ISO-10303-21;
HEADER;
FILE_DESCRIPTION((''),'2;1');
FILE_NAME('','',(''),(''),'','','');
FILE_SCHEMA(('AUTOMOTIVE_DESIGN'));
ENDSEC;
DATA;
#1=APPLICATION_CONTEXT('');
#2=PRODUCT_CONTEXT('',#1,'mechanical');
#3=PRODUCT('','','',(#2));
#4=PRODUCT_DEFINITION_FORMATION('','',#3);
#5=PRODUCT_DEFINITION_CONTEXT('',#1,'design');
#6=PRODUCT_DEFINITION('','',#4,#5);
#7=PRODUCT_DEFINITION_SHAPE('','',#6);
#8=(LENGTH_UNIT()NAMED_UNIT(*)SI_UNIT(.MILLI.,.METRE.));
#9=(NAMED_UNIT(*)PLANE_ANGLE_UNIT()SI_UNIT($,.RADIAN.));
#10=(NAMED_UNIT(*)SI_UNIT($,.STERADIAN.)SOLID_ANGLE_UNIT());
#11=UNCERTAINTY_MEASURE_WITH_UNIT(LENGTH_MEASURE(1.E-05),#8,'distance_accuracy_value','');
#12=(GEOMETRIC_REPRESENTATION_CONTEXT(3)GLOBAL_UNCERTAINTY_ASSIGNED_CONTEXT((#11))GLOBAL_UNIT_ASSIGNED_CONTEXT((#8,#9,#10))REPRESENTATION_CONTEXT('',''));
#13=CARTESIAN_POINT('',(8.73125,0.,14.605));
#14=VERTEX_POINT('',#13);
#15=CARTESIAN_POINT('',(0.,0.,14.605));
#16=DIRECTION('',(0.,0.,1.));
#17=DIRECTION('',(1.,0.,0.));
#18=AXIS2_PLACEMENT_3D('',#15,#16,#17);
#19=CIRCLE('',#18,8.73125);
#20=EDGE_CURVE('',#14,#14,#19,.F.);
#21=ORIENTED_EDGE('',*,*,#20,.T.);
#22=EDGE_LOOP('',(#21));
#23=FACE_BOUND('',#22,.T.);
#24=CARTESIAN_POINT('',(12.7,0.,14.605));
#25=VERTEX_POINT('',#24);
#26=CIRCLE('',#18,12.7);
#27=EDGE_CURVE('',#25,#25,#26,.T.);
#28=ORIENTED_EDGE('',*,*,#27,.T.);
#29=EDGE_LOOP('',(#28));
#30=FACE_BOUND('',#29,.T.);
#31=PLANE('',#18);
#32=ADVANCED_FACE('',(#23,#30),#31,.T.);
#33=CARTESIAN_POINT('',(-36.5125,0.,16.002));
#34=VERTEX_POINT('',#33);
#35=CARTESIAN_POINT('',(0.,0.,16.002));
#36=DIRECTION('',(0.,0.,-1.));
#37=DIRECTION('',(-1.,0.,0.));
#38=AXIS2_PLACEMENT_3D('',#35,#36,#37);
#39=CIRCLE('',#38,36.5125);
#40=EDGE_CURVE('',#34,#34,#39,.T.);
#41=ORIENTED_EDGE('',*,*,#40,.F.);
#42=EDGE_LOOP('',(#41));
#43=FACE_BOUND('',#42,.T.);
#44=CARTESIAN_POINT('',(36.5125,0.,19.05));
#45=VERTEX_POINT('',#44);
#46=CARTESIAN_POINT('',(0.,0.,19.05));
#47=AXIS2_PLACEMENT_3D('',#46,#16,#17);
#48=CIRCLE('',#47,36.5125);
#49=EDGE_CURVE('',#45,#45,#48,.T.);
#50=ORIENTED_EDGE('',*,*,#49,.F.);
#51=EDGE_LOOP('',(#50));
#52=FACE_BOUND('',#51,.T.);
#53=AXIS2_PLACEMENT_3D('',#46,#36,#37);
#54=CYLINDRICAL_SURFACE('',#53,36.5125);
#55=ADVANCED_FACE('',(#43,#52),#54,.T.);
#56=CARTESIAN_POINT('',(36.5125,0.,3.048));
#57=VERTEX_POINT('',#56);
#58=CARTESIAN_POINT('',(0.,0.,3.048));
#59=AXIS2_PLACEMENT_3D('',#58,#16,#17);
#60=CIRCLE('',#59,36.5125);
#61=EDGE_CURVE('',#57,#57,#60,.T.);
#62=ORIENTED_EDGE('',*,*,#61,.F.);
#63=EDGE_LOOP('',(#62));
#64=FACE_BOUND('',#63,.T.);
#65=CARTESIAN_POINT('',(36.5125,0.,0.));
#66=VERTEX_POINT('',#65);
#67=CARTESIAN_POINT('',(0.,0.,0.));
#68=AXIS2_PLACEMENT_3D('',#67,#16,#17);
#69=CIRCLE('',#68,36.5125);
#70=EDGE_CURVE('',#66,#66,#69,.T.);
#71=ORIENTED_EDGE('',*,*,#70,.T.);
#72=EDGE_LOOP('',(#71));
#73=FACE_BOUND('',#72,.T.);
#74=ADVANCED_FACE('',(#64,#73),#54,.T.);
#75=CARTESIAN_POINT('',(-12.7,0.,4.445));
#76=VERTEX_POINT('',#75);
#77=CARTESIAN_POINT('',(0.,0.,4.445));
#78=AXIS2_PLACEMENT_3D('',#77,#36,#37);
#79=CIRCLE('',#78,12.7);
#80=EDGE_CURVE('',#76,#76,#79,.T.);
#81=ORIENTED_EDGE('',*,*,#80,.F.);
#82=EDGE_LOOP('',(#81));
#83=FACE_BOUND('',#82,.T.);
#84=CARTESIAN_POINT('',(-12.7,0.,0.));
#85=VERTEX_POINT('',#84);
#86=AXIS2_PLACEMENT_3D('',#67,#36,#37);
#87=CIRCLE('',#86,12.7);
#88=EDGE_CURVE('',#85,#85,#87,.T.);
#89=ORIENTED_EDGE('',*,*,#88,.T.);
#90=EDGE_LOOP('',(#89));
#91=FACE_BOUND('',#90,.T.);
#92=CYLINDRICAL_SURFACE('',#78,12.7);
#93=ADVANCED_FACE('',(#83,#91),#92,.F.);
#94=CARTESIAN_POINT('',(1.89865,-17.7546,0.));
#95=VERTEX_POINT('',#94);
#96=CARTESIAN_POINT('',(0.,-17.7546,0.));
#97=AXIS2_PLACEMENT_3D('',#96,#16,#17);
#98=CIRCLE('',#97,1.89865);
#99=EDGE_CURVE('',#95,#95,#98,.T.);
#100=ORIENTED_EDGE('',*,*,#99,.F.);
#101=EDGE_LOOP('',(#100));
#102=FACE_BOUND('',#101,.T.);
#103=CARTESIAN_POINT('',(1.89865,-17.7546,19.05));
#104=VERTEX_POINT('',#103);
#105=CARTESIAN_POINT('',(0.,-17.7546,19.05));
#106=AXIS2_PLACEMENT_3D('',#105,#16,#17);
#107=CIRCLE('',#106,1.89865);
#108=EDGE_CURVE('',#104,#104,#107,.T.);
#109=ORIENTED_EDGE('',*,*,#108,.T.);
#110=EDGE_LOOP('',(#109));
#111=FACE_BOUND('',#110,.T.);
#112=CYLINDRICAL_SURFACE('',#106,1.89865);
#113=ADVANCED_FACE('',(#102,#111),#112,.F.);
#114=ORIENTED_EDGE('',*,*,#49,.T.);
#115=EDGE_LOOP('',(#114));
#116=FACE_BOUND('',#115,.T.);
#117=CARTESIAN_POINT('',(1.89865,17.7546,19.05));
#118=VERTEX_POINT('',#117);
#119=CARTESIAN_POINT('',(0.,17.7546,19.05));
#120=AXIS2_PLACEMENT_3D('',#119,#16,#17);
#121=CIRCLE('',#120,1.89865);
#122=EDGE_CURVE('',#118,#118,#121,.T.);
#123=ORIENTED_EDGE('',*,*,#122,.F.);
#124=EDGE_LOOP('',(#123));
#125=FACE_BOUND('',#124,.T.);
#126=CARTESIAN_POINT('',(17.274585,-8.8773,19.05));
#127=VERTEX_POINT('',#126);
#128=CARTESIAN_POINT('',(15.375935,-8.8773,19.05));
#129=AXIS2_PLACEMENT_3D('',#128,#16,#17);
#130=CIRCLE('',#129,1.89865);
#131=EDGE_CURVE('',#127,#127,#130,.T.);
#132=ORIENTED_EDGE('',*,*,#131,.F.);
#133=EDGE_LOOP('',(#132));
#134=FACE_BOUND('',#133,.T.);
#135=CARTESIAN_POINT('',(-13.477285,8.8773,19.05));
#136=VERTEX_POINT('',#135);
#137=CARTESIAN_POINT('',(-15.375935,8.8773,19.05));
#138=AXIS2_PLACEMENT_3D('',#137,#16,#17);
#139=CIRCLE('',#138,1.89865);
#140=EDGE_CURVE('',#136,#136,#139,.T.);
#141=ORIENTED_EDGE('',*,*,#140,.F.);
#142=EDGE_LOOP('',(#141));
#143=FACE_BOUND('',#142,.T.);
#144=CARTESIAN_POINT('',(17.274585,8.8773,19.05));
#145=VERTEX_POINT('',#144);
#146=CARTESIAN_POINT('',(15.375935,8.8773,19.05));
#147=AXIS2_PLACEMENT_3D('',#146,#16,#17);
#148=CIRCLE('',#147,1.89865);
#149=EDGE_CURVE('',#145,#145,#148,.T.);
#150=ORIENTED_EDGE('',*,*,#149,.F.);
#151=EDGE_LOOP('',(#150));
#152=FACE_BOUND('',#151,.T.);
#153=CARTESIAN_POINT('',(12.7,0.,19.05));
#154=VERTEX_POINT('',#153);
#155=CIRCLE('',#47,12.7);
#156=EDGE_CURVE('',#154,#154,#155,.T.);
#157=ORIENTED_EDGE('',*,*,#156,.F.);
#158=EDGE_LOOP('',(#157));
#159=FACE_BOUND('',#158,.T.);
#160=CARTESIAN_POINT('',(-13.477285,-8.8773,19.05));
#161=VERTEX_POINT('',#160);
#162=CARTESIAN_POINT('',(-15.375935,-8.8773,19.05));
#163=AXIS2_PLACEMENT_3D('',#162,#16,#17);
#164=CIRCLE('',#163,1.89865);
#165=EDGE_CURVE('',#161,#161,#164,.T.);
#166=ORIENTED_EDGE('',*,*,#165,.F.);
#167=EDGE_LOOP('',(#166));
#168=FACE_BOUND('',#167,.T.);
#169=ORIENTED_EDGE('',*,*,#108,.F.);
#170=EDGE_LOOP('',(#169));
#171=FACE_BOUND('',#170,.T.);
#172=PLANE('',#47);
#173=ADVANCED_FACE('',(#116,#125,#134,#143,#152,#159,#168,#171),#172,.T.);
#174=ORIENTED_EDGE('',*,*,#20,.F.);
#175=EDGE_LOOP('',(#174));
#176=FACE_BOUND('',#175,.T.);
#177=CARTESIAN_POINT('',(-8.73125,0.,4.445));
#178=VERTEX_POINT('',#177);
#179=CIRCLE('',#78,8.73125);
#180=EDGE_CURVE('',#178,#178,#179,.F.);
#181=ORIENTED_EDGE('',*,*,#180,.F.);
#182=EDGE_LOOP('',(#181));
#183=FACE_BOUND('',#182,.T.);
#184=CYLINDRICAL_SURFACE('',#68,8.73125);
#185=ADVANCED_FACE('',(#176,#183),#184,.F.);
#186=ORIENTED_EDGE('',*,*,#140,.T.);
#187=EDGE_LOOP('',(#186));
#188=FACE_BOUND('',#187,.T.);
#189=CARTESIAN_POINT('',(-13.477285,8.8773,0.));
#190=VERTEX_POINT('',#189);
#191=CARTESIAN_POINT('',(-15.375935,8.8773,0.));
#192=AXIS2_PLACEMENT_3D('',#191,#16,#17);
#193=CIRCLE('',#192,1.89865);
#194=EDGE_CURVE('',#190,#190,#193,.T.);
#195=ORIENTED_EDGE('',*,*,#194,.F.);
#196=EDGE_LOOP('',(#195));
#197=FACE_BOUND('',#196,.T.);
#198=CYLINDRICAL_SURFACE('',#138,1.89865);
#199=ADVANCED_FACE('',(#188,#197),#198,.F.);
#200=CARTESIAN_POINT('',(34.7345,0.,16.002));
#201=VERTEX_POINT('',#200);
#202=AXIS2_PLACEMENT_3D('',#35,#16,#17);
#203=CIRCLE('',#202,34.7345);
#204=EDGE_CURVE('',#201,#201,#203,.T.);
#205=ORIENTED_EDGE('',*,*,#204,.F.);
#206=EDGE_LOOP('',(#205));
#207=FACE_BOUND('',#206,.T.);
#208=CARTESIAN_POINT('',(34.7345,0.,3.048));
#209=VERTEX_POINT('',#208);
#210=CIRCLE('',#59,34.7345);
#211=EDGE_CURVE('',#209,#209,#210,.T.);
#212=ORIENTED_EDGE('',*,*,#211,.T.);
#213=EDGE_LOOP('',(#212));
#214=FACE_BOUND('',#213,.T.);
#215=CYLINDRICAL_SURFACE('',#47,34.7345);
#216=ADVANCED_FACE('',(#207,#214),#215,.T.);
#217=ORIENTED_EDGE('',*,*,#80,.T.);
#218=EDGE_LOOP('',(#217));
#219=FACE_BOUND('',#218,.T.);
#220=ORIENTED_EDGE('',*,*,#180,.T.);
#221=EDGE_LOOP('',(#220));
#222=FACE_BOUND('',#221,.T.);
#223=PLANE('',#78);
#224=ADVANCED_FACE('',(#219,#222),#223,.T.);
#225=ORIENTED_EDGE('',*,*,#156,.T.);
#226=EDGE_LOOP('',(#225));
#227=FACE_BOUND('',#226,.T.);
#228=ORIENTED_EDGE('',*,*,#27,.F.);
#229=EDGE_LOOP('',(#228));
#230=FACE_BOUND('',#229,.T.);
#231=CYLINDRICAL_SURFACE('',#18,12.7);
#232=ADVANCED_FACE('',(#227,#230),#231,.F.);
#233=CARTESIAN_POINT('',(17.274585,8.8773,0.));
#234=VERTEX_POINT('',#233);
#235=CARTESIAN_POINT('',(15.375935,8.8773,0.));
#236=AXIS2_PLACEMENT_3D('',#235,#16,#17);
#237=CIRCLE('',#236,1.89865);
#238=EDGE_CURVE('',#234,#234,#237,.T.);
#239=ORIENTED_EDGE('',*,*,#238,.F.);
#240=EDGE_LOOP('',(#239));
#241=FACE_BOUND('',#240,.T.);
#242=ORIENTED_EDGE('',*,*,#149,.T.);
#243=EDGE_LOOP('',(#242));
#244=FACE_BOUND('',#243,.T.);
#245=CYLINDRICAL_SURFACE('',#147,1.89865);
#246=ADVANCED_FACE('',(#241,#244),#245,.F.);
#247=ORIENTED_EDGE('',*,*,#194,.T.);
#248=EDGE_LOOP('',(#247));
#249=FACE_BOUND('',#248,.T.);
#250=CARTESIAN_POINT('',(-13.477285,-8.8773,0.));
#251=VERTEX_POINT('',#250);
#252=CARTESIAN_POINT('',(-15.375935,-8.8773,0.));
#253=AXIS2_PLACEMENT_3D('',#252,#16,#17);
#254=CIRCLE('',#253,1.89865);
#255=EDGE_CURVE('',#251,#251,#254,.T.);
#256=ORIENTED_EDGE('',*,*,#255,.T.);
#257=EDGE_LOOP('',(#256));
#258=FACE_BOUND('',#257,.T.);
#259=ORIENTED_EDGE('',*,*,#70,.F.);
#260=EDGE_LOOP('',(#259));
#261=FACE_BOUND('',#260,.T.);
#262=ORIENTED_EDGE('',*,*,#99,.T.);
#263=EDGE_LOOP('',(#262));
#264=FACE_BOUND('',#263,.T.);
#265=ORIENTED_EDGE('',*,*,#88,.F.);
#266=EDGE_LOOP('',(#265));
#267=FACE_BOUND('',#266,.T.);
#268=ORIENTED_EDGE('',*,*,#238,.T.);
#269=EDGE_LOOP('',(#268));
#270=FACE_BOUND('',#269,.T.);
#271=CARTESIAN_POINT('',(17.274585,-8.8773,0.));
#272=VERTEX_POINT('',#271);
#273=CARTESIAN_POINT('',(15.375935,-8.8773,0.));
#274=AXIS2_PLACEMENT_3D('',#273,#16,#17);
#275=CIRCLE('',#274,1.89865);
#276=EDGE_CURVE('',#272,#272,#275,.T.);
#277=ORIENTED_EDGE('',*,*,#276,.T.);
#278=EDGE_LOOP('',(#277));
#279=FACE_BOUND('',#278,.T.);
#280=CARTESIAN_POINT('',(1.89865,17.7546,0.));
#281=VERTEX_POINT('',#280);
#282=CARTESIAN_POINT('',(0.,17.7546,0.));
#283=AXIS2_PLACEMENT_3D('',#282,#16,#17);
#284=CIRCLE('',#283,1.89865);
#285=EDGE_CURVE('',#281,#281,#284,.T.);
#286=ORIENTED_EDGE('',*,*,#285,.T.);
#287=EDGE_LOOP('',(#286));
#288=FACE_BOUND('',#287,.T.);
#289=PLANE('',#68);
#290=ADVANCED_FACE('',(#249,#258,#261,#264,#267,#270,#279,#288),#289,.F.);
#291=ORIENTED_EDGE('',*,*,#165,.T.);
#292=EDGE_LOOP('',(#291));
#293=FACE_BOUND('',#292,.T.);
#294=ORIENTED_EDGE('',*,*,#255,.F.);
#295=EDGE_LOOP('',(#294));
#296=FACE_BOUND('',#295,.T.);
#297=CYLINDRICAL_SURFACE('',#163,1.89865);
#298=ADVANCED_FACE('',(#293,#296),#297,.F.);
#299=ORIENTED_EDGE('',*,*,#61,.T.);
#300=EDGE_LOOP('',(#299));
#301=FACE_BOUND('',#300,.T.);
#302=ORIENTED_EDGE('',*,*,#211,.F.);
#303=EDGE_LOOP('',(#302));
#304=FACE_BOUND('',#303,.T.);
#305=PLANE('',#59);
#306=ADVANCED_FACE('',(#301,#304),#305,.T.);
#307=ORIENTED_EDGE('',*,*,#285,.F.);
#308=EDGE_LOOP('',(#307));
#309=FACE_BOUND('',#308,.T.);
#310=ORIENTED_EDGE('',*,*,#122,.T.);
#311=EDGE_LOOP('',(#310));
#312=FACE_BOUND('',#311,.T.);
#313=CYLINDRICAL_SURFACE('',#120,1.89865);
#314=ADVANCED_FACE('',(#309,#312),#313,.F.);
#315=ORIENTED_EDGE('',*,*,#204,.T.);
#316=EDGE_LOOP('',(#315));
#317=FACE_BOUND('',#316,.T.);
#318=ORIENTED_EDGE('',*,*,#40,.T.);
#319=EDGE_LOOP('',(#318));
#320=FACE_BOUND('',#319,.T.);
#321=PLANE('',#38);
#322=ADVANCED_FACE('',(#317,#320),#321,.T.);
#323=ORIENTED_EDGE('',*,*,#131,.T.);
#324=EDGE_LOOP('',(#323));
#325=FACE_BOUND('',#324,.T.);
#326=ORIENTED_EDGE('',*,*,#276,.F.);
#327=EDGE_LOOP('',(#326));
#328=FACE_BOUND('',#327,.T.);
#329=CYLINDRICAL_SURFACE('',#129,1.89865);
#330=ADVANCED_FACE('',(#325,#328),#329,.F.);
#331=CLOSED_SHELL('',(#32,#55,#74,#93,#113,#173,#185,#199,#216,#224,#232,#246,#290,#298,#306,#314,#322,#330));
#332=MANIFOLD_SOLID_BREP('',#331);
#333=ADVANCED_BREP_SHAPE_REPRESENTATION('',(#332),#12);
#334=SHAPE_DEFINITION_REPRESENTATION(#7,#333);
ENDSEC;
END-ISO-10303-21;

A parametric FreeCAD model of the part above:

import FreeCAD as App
import Part
import Sketcher

V = App.Vector
Q = App.Units.Quantity

doc = App.newDocument("Part")
body = doc.addObject("PartDesign::Body", "Body")

sketch1 = doc.addObject("Sketcher::SketchObject", "Sketch")
body.addObject(sketch1)
sketch1.AttachmentSupport = (doc.XY_Plane, [""])
sketch1.MapMode = "FlatFace"
sketch1.addGeometry(Part.Circle(V(0, 0, 0), V(0, 0, 1), 37), False)
sketch1.addConstraint([
    Sketcher.Constraint("Coincident", 0, 3, -1, 1),
    Sketcher.Constraint("Diameter", 0, Q("2.875 in")),
])
pad1 = doc.addObject("PartDesign::Pad", "Pad")
body.addObject(pad1)
pad1.Profile = sketch1
pad1.Length = Q("0.75 in")

sketch2 = doc.addObject("Sketcher::SketchObject", "Sketch001")
body.addObject(sketch2)
sketch2.AttachmentSupport = (doc.XY_Plane, [""])
sketch2.MapMode = "FlatFace"
sketch2.AttachmentOffset = App.Placement(V(0, 0, 0.75 * 25.4), App.Rotation())
sketch2.addGeometry(Part.Circle(V(0, 0, 0), V(0, 0, 1), 9), False)
sketch2.addConstraint([
    Sketcher.Constraint("Coincident", 0, 3, -1, 1),
    Sketcher.Constraint("Diameter", 0, Q("0.6875 in")),
])
pocket1 = doc.addObject("PartDesign::Pocket", "Pocket")
body.addObject(pocket1)
pocket1.Profile = sketch2
pocket1.Type = "ThroughAll"

sketch3 = doc.addObject("Sketcher::SketchObject", "Sketch002")
body.addObject(sketch3)
sketch3.AttachmentSupport = (doc.XY_Plane, [""])
sketch3.MapMode = "FlatFace"
sketch3.AttachmentOffset = App.Placement(V(0, 0, 0.75 * 25.4), App.Rotation())
sketch3.addGeometry(Part.Circle(V(0, 0, 0), V(0, 0, 1), 13), False)
sketch3.addConstraint([
    Sketcher.Constraint("Coincident", 0, 3, -1, 1),
    Sketcher.Constraint("Diameter", 0, Q("1 in")),
])
pocket2 = doc.addObject("PartDesign::Pocket", "Pocket001")
body.addObject(pocket2)
pocket2.Profile = sketch3
pocket2.Length = Q("0.175 in")

sketch4 = doc.addObject("Sketcher::SketchObject", "Sketch003")
body.addObject(sketch4)
sketch4.AttachmentSupport = (doc.XY_Plane, [""])
sketch4.MapMode = "FlatFace"
sketch4.addGeometry(Part.Circle(V(0, 0, 0), V(0, 0, 1), 13), False)
sketch4.addConstraint([
    Sketcher.Constraint("Coincident", 0, 3, -1, 1),
    Sketcher.Constraint("Diameter", 0, Q("1 in")),
])
pocket3 = doc.addObject("PartDesign::Pocket", "Pocket002")
body.addObject(pocket3)
pocket3.Profile = sketch4
pocket3.Length = Q("0.175 in")
pocket3.Reversed = True

sketch5 = doc.addObject("Sketcher::SketchObject", "Sketch004")
body.addObject(sketch5)
sketch5.AttachmentSupport = (doc.XY_Plane, [""])
sketch5.MapMode = "FlatFace"
sketch5.AttachmentOffset = App.Placement(V(0, 0, 0.75 * 25.4), App.Rotation())
sketch5.addGeometry([
    Part.Circle(V(0, 17.8, 0), V(0, 0, 1), 1.9),
    Part.Circle(V(-15.4, 8.9, 0), V(0, 0, 1), 1.9),
    Part.Circle(V(-15.4, -8.9, 0), V(0, 0, 1), 1.9),
    Part.Circle(V(0, -17.8, 0), V(0, 0, 1), 1.9),
    Part.Circle(V(15.4, -8.9, 0), V(0, 0, 1), 1.9),
    Part.Circle(V(15.4, 8.9, 0), V(0, 0, 1), 1.9),
], False)
sketch5.addConstraint([
    Sketcher.Constraint("Equal", 0, 1),
    Sketcher.Constraint("Equal", 1, 2),
    Sketcher.Constraint("Equal", 2, 3),
    Sketcher.Constraint("Equal", 3, 4),
    Sketcher.Constraint("Equal", 4, 5),
    Sketcher.Constraint("Symmetric", 0, 3, 3, 3, -1, 1),
    Sketcher.Constraint("Symmetric", 1, 3, 4, 3, -1, 1),
    Sketcher.Constraint("Symmetric", 2, 3, 5, 3, -1, 1),
    Sketcher.Constraint("Symmetric", 2, 3, 4, 3, -2),
    Sketcher.Constraint("PointOnObject", 0, 3, -2),
    Sketcher.Constraint("Diameter", 0, Q("0.1495 in")),
    Sketcher.Constraint("DistanceY", -1, 1, 0, 3, Q("0.699 in")),
    Sketcher.Constraint("DistanceY", 2, 3, 1, 3, Q("0.699 in")),
    Sketcher.Constraint("DistanceX", 2, 3, 4, 3, Q("30.751869 mm")),
])
doc.recompute()
hole = doc.addObject("PartDesign::Hole", "Hole")
body.addObject(hole)
hole.Profile = sketch5
hole.ThreadType = "None"
hole.Diameter = Q("0.1495 in")
hole.DepthType = "ThroughAll"

sketch6 = doc.addObject("Sketcher::SketchObject", "Sketch005")
body.addObject(sketch6)
sketch6.AttachmentSupport = (doc.YZ_Plane, [""])
sketch6.MapMode = "FlatFace"
sketch6.addGeometry([
    Part.LineSegment(V(35, 16, 0), V(35, 3, 0)),
    Part.LineSegment(V(35, 3, 0), V(51, 3, 0)),
    Part.LineSegment(V(51, 3, 0), V(51, 16, 0)),
    Part.LineSegment(V(51, 16, 0), V(35, 16, 0)),
], False)
sketch6.addConstraint([
    Sketcher.Constraint("Coincident", 0, 2, 1, 1),
    Sketcher.Constraint("Coincident", 1, 2, 2, 1),
    Sketcher.Constraint("Coincident", 2, 2, 3, 1),
    Sketcher.Constraint("Coincident", 3, 2, 0, 1),
    Sketcher.Constraint("Vertical", 0),
    Sketcher.Constraint("Horizontal", 1),
    Sketcher.Constraint("Vertical", 2),
    Sketcher.Constraint("Horizontal", 3),
    Sketcher.Constraint("DistanceY", 0, 2, 0, 1, Q("0.51 in")),
    Sketcher.Constraint("DistanceY", -1, 1, 0, 2, Q("0.12 in")),
    Sketcher.Constraint("DistanceX", -1, 1, 0, 2, Q("1.3675 in")),
    Sketcher.Constraint("DistanceX", 1, 1, 1, 2, Q("16.417709 mm")),
])
groove = doc.addObject("PartDesign::Groove", "Groove")
body.addObject(groove)
groove.Profile = sketch6
groove.ReferenceAxis = (sketch6, ["V_Axis"])
groove.Angle = 360

doc.recompute()
